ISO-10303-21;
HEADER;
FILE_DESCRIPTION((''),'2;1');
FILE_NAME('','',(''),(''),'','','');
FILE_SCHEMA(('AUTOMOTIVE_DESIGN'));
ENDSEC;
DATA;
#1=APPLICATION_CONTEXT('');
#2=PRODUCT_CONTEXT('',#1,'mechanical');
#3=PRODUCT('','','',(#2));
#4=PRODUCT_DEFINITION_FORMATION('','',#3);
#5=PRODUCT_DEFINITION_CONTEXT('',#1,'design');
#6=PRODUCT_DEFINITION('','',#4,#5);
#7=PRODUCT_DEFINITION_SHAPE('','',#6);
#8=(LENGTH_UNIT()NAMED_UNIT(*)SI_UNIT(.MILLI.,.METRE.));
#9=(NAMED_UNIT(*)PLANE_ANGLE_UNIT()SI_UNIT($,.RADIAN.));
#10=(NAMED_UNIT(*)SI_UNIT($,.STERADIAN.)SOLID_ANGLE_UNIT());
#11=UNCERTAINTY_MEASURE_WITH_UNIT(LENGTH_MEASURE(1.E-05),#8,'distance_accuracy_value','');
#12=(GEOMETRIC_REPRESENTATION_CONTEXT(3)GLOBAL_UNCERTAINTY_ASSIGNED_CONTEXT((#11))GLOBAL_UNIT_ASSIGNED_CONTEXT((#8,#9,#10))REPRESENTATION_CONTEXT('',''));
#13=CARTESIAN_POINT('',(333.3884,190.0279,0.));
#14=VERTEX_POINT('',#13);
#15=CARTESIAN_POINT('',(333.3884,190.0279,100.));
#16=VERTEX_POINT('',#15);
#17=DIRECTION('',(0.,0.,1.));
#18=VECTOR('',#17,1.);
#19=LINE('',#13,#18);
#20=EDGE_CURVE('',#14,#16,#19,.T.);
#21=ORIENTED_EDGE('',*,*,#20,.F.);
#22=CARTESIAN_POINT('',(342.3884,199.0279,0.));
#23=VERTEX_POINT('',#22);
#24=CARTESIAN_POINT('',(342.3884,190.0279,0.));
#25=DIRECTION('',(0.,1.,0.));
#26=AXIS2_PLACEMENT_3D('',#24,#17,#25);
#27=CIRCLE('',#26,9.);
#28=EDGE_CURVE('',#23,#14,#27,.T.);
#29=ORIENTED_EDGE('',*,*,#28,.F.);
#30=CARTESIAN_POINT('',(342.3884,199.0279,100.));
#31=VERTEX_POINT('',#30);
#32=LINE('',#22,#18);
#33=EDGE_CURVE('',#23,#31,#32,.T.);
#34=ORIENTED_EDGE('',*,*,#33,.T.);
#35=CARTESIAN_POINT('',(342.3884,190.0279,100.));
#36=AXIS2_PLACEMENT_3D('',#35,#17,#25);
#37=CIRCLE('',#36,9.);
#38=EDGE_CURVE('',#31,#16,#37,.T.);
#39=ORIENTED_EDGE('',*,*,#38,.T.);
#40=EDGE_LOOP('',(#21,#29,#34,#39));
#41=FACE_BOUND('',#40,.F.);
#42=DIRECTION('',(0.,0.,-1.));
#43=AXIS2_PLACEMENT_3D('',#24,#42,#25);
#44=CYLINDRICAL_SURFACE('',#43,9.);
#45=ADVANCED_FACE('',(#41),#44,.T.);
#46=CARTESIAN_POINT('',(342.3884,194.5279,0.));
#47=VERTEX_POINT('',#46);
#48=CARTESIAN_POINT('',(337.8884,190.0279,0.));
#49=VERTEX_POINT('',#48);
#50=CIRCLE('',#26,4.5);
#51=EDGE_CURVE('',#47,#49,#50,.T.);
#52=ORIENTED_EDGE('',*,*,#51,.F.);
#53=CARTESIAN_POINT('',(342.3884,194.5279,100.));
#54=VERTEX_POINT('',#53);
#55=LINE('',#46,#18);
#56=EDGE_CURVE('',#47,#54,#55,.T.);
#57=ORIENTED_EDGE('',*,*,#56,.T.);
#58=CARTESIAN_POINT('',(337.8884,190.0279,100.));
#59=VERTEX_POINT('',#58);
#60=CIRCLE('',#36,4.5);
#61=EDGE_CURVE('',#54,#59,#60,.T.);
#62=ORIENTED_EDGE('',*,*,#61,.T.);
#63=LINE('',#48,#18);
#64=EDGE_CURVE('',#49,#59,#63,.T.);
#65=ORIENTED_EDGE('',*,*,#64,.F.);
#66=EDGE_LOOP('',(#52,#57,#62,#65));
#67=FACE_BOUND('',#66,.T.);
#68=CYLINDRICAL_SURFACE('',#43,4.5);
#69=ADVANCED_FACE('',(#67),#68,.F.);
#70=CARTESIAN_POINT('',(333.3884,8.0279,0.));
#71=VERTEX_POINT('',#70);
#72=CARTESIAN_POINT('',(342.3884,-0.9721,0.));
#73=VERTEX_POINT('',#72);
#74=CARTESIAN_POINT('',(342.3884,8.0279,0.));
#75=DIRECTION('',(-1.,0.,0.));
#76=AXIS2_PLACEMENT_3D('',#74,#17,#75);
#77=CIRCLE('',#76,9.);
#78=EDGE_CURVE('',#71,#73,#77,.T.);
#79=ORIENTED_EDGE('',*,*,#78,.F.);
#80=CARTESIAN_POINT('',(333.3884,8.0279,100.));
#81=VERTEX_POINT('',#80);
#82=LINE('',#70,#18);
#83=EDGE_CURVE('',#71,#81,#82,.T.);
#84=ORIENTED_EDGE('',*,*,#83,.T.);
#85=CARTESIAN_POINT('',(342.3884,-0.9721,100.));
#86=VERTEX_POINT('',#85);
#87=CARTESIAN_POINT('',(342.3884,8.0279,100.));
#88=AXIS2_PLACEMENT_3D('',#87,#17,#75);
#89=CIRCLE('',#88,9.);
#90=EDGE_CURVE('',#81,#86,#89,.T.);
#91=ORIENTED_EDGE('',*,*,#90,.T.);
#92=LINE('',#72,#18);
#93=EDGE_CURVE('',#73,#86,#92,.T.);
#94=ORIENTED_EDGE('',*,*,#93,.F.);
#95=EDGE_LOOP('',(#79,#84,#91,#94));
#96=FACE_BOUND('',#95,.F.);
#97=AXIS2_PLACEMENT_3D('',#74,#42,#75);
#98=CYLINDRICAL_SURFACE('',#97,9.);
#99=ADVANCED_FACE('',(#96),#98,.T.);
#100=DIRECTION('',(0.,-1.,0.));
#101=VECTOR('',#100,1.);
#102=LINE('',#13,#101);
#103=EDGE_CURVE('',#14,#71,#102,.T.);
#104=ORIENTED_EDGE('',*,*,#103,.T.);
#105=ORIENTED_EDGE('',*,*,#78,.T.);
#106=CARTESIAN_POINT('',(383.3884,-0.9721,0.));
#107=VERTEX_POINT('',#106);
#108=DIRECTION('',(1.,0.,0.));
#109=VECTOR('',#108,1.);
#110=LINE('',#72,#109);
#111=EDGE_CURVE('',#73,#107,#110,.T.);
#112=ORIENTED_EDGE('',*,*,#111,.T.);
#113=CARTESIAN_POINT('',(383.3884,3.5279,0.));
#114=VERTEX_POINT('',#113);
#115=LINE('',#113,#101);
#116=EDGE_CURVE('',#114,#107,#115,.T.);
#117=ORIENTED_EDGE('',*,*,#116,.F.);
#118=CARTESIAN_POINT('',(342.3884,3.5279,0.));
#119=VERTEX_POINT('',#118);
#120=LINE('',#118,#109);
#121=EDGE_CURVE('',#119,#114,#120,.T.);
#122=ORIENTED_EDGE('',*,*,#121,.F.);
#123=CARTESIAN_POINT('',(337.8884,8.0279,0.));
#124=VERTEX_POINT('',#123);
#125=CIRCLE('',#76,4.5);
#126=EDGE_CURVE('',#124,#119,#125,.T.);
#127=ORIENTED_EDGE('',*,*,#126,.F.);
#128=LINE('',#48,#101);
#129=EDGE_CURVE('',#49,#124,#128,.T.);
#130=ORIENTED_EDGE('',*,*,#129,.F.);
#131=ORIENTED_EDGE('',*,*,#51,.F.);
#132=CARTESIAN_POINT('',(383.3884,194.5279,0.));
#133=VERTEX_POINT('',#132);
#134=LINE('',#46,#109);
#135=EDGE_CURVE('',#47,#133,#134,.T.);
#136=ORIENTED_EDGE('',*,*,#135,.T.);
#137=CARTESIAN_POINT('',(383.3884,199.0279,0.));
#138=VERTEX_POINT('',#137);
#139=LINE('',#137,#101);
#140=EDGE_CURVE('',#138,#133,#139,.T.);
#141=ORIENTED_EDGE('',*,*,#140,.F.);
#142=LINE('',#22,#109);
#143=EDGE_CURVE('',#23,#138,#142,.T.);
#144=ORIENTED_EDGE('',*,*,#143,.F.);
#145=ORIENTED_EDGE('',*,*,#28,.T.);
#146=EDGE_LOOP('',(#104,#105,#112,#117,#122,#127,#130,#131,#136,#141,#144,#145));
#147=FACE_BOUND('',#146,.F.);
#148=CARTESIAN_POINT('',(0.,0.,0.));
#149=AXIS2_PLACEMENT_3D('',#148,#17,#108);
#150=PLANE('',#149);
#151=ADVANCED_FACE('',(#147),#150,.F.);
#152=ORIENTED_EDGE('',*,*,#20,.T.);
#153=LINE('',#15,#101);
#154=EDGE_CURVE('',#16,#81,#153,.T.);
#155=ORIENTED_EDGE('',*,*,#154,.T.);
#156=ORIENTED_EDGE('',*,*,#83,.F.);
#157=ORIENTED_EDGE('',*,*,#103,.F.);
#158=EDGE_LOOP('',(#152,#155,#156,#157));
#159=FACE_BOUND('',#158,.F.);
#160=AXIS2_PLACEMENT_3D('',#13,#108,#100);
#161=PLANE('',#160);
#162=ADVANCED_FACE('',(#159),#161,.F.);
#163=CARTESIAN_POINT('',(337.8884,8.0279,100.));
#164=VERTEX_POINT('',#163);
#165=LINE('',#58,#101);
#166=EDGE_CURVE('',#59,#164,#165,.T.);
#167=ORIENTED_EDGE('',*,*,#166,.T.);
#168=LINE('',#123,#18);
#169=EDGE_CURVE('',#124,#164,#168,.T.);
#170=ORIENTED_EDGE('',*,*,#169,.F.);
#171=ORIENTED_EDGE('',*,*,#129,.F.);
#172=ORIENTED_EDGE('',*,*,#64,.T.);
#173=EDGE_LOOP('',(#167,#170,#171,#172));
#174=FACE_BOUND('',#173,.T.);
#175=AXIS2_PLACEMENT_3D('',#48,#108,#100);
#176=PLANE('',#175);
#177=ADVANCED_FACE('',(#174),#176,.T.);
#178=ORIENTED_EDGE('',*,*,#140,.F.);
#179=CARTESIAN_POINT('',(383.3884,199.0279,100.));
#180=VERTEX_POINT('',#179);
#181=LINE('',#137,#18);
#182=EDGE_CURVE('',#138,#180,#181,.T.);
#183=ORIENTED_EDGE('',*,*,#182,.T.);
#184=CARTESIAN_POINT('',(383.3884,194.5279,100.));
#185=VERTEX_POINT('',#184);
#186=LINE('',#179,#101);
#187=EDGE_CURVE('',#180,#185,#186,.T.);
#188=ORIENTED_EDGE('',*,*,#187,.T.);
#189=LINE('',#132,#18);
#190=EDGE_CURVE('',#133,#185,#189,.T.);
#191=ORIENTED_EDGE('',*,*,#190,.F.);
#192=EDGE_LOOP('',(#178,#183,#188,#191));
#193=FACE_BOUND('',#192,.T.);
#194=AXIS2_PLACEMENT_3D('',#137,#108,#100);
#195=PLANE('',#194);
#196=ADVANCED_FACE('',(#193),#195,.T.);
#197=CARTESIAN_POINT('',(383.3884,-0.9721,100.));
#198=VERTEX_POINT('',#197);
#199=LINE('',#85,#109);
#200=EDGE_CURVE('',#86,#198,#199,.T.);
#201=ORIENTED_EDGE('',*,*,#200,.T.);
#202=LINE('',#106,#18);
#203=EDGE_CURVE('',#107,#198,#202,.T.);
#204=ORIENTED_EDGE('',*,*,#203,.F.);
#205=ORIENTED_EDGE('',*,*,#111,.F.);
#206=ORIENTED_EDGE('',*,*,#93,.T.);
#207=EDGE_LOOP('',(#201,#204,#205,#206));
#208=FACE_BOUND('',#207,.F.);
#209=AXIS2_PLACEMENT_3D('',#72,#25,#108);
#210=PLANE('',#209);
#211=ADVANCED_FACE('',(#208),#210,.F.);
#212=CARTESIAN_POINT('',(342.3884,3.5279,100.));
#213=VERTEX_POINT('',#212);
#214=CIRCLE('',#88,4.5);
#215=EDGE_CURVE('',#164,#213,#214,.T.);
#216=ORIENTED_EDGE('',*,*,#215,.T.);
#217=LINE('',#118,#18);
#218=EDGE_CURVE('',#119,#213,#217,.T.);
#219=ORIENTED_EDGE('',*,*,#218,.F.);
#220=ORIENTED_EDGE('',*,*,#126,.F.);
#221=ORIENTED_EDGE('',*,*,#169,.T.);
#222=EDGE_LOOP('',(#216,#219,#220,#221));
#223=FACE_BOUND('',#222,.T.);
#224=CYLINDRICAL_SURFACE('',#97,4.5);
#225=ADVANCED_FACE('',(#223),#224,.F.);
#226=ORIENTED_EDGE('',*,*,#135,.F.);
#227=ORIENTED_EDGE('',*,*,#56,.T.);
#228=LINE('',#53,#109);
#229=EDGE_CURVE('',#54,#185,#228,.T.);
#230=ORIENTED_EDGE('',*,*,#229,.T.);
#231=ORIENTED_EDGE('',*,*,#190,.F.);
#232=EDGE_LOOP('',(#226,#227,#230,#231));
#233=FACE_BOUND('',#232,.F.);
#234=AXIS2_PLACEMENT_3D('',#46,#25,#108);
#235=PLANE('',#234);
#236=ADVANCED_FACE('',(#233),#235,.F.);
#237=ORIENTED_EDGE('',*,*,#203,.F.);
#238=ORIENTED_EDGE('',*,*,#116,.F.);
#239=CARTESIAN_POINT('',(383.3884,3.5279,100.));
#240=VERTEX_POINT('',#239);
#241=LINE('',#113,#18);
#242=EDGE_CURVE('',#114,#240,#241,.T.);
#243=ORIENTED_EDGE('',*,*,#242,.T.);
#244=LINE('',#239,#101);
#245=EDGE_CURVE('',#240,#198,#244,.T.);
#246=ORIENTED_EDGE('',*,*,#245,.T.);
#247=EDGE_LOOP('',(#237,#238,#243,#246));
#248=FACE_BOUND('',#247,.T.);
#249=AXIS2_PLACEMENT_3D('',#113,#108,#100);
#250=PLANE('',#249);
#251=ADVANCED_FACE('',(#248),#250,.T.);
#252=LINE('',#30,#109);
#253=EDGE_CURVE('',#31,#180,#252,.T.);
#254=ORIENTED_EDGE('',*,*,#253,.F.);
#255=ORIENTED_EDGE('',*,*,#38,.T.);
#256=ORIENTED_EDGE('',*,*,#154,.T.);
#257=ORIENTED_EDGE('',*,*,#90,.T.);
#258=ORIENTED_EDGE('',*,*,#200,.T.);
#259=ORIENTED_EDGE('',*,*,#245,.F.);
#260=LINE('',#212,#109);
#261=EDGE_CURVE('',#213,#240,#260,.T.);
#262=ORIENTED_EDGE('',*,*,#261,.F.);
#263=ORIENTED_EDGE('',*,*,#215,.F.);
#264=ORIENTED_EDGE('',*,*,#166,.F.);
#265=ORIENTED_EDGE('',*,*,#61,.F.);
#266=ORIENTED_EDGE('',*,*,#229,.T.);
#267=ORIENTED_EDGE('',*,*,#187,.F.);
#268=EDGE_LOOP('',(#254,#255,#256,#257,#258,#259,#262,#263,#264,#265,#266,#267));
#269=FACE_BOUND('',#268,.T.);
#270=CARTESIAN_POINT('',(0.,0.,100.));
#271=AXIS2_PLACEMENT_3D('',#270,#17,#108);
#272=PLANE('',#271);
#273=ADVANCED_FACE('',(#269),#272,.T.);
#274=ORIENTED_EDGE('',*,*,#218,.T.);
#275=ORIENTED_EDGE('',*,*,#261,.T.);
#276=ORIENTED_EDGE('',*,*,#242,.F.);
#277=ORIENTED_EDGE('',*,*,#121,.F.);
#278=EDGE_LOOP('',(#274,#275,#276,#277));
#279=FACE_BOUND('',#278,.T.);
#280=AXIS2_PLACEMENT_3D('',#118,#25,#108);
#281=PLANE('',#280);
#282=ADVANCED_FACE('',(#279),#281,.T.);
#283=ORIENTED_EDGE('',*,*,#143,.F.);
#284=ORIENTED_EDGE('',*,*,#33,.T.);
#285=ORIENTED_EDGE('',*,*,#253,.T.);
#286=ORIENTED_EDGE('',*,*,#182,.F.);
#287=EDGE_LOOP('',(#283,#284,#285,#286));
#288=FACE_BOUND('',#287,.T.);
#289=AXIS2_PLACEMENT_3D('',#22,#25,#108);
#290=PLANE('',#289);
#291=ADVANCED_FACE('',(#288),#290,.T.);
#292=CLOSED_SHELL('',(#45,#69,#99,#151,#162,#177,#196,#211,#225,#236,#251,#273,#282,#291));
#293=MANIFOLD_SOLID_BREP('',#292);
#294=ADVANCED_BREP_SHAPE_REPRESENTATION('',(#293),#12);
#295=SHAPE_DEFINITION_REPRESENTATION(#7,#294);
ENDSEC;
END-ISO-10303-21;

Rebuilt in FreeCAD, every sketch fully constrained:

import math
import FreeCAD as App
import Part
import Sketcher

doc = App.newDocument("Part")
body = doc.addObject("PartDesign::Body", "Body")

sketch1 = body.newObject("Sketcher::SketchObject", "Sketch")
sketch1.AttachmentSupport = (doc.getObject("XY_Plane"), [""])
sketch1.MapMode = "FlatFace"
sketch1.addGeometry([
    Part.ArcOfCircle(Part.Circle(App.Vector(342.3884, 190.0279, 0), App.Vector(0, 0, 1), 9), math.radians(90), math.radians(180)),
    Part.LineSegment(App.Vector(333.3884, 190.0279, 0), App.Vector(333.3884, 8.0279, 0)),
    Part.ArcOfCircle(Part.Circle(App.Vector(342.3884, 8.0279, 0), App.Vector(0, 0, 1), 9), math.radians(180), math.radians(270)),
    Part.LineSegment(App.Vector(342.3884, -0.9721, 0), App.Vector(383.3884, -0.9721, 0)),
    Part.LineSegment(App.Vector(383.3884, -0.9721, 0), App.Vector(383.3884, 3.5279, 0)),
    Part.LineSegment(App.Vector(383.3884, 3.5279, 0), App.Vector(342.3884, 3.5279, 0)),
    Part.ArcOfCircle(Part.Circle(App.Vector(342.3884, 8.0279, 0), App.Vector(0, 0, 1), 4.5), math.radians(180), math.radians(270)),
    Part.LineSegment(App.Vector(337.8884, 8.0279, 0), App.Vector(337.8884, 190.0279, 0)),
    Part.ArcOfCircle(Part.Circle(App.Vector(342.3884, 190.0279, 0), App.Vector(0, 0, 1), 4.5), math.radians(90), math.radians(180)),
    Part.LineSegment(App.Vector(342.3884, 194.5279, 0), App.Vector(383.3884, 194.5279, 0)),
    Part.LineSegment(App.Vector(383.3884, 194.5279, 0), App.Vector(383.3884, 199.0279, 0)),
    Part.LineSegment(App.Vector(383.3884, 199.0279, 0), App.Vector(342.3884, 199.0279, 0)),
], False)
sketch1.addConstraint([
    Sketcher.Constraint("Tangent", 0, 2, 1, 1),
    Sketcher.Constraint("Tangent", 1, 2, 2, 1),
    Sketcher.Constraint("Tangent", 2, 2, 3, 1),
    Sketcher.Constraint("Coincident", 3, 2, 4, 1),
    Sketcher.Constraint("Coincident", 4, 2, 5, 1),
    Sketcher.Constraint("Tangent", 5, 2, 6, 2),
    Sketcher.Constraint("Tangent", 6, 1, 7, 1),
    Sketcher.Constraint("Tangent", 7, 2, 8, 2),
    Sketcher.Constraint("Tangent", 8, 1, 9, 1),
    Sketcher.Constraint("Coincident", 9, 2, 10, 1),
    Sketcher.Constraint("Coincident", 10, 2, 11, 1),
    Sketcher.Constraint("Tangent", 11, 2, 0, 1),
    Sketcher.Constraint("Vertical", 1),
    Sketcher.Constraint("Horizontal", 3),
    Sketcher.Constraint("Vertical", 4),
    Sketcher.Constraint("Horizontal", 5),
    Sketcher.Constraint("Vertical", 7),
    Sketcher.Constraint("Horizontal", 9),
    Sketcher.Constraint("Vertical", 10),
    Sketcher.Constraint("Horizontal", 11),
    Sketcher.Constraint("Coincident", 6, 3, 2, 3),
    Sketcher.Constraint("Coincident", 8, 3, 0, 3),
    Sketcher.Constraint("Equal", 0, 2),
    Sketcher.Constraint("Vertical", 4, 2, 9, 2),
    Sketcher.Constraint("Radius", 0, 9.0),
    Sketcher.Constraint("Radius", 6, 4.5),
    Sketcher.Constraint("DistanceX", 3, 1, 3, 2, 41.0),
    Sketcher.Constraint("DistanceY", 1, 2, 1, 1, 182.0),
    Sketcher.Constraint("DistanceY", -1, 1, 0, 3, 190.028),
    Sketcher.Constraint("DistanceX", -1, 1, 0, 3, 342.3884),
])
pad1 = body.newObject("PartDesign::Pad", "Pad")
pad1.Profile = sketch1
pad1.Length = 100

doc.recompute()
